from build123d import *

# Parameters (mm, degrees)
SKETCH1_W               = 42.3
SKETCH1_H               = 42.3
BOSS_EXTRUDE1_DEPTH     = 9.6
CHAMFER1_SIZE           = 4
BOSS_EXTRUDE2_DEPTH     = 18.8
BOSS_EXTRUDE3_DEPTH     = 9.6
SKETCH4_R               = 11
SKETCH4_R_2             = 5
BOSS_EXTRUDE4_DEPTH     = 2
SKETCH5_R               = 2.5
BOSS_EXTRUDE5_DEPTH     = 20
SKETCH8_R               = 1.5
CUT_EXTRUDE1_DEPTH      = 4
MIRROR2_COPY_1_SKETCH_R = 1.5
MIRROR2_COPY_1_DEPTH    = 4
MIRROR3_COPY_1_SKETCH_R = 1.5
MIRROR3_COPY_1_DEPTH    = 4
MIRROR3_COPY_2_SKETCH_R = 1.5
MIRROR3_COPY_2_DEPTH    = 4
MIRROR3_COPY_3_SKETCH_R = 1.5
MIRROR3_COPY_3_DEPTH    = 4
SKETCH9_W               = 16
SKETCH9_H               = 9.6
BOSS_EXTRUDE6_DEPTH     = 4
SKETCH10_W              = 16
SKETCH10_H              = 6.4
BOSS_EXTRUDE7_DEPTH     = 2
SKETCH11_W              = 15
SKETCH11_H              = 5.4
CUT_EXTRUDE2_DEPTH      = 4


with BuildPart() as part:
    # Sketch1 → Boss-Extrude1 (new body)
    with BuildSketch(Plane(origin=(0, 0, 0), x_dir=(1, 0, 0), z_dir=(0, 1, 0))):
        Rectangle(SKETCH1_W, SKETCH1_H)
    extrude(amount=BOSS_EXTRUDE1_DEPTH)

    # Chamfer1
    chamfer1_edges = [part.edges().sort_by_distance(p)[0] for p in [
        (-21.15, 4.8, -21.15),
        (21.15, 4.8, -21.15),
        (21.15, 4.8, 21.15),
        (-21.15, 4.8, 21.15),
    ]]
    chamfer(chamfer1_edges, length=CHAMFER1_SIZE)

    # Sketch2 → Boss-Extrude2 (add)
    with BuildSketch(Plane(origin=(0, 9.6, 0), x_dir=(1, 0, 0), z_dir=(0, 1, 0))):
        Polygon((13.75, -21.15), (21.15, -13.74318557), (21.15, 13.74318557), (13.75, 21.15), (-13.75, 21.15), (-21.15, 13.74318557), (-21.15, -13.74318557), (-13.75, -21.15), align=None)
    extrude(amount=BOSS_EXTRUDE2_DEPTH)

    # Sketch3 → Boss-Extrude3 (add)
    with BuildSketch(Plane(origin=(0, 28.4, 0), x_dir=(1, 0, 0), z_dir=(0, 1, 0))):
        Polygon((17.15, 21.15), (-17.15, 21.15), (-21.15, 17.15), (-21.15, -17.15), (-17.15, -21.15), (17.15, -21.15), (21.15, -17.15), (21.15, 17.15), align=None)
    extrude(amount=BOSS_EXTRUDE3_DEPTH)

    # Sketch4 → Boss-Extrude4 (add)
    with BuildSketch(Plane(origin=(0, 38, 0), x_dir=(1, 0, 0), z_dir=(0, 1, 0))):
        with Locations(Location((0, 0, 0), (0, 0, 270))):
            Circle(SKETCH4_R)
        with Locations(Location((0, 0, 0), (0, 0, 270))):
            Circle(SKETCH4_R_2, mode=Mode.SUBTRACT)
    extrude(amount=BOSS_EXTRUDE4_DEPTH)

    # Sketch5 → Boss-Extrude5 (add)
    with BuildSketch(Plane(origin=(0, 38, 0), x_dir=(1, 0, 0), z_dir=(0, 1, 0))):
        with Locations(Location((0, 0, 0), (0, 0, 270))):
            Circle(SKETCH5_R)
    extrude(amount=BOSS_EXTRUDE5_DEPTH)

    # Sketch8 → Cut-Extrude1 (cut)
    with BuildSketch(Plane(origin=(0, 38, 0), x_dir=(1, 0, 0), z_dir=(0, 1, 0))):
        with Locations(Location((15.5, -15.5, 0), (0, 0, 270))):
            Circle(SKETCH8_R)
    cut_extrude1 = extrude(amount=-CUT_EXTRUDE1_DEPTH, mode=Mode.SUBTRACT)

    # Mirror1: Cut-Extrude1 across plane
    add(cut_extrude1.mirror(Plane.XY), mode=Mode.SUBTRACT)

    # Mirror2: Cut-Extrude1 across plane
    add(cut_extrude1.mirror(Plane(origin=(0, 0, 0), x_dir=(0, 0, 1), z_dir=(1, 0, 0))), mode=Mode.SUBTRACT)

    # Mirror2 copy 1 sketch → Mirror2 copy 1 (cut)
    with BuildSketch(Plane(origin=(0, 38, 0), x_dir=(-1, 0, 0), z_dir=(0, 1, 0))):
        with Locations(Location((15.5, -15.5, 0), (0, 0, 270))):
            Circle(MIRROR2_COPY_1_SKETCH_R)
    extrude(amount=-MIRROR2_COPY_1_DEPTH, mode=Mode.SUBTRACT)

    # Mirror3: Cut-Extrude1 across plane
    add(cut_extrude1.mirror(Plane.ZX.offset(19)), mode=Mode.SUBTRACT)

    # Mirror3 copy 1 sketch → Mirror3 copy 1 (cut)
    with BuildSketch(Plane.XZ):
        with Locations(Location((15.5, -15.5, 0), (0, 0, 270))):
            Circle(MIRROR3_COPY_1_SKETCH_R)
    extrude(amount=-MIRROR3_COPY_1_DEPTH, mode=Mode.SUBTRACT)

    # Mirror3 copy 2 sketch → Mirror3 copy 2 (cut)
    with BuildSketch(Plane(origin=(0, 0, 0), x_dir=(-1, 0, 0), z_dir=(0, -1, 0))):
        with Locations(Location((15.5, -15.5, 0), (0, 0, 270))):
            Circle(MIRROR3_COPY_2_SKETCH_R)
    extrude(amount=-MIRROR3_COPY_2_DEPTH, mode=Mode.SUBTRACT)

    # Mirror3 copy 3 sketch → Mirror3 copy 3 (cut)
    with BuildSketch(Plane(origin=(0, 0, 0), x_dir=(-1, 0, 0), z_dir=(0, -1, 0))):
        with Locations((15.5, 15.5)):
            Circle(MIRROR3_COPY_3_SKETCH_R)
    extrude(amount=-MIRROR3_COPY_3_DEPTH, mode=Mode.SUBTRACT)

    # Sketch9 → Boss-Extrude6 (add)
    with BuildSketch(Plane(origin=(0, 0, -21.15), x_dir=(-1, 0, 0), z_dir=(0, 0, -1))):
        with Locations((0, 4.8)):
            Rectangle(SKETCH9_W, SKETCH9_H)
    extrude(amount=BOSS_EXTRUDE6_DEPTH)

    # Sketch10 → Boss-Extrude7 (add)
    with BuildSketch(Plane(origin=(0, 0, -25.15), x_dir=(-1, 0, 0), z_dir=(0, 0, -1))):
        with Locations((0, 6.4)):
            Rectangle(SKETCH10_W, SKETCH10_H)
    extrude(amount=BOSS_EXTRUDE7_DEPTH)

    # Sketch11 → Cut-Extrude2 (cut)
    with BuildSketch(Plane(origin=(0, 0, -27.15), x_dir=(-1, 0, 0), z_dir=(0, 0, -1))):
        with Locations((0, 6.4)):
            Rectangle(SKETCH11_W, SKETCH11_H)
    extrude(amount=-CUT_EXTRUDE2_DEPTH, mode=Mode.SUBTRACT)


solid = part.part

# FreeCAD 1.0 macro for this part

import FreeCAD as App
import Part
import Sketcher

V = App.Vector
Q = App.Units.Quantity


def edges_at(feature, points):
    """Names of the edges that pass closest to the given points."""
    edges = feature.Shape.Edges
    near = lambda p: min(range(len(edges)), key=lambda i: edges[i].distToShape(Part.Vertex(*p))[0])
    return sorted({f"Edge{near(p) + 1}" for p in points})

doc = App.newDocument("Part")
body = doc.addObject("PartDesign::Body", "Body")

sketch1 = doc.addObject("Sketcher::SketchObject", "Sketch")
body.addObject(sketch1)
sketch1.AttachmentSupport = (doc.XZ_Plane, [""])
sketch1.MapMode = "FlatFace"
sketch1.addGeometry(Part.LineSegment(V(-21.15, -21.15, 0), V(-21.15, 21.15, 0)), False)
sketch1.addGeometry(Part.LineSegment(V(-21.15, 21.15, 0), V(21.15, 21.15, 0)), False)
sketch1.addGeometry(Part.LineSegment(V(21.15, 21.15, 0), V(21.15, -21.15, 0)), False)
sketch1.addGeometry(Part.LineSegment(V(21.15, -21.15, 0), V(-21.15, -21.15, 0)), False)
sketch1.addConstraint(Sketcher.Constraint("Coincident", 0, 2, 1, 1))
sketch1.addConstraint(Sketcher.Constraint("Coincident", 1, 2, 2, 1))
sketch1.addConstraint(Sketcher.Constraint("Coincident", 2, 2, 3, 1))
sketch1.addConstraint(Sketcher.Constraint("Coincident", 3, 2, 0, 1))
sketch1.addConstraint(Sketcher.Constraint("Vertical", 0))
sketch1.addConstraint(Sketcher.Constraint("Horizontal", 1))
sketch1.addConstraint(Sketcher.Constraint("Vertical", 2))
sketch1.addConstraint(Sketcher.Constraint("Horizontal", 3))
sketch1.addConstraint(Sketcher.Constraint("Symmetric", 0, 2, 2, 2, -1, 1))
sketch1.addConstraint(Sketcher.Constraint("Equal", 3, 0))
sketch1.addConstraint(Sketcher.Constraint("DistanceX", 1, 1, 1, 2, Q("42.3 mm")))
pad1 = doc.addObject("PartDesign::Pad", "Pad")
body.addObject(pad1)
pad1.Profile = sketch1
pad1.Length = 9.6
pad1.Reversed = True
doc.recompute()

chamfer = doc.addObject("PartDesign::Chamfer", "Chamfer")
body.addObject(chamfer)
chamfer.Base = (pad1, edges_at(pad1, [
    (-21.15, 4.8, -21.15),
    (21.15, 4.8, -21.15),
    (21.15, 4.8, 21.15),
    (-21.15, 4.8, 21.15),
]))
chamfer.Size = 4

sketch2 = doc.addObject("Sketcher::SketchObject", "Sketch001")
body.addObject(sketch2)
sketch2.AttachmentSupport = (doc.XZ_Plane, [""])
sketch2.MapMode = "FlatFace"
sketch2.AttachmentOffset = App.Placement(V(0, 0, -9.6), App.Rotation())
sketch2.addGeometry(Part.LineSegment(V(13.75, 21.15, 0), V(21.15, 13.743186, 0)), False)
sketch2.addGeometry(Part.LineSegment(V(21.15, 13.743186, 0), V(21.15, -13.743186, 0)), False)
sketch2.addGeometry(Part.LineSegment(V(21.15, -13.743186, 0), V(13.75, -21.15, 0)), False)
sketch2.addGeometry(Part.LineSegment(V(13.75, -21.15, 0), V(-13.75, -21.15, 0)), False)
sketch2.addGeometry(Part.LineSegment(V(-13.75, -21.15, 0), V(-21.15, -13.743186, 0)), False)
sketch2.addGeometry(Part.LineSegment(V(-21.15, -13.743186, 0), V(-21.15, 13.743186, 0)), False)
sketch2.addGeometry(Part.LineSegment(V(-21.15, 13.743186, 0), V(-13.75, 21.15, 0)), False)
sketch2.addGeometry(Part.LineSegment(V(-13.75, 21.15, 0), V(13.75, 21.15, 0)), False)
sketch2.addConstraint(Sketcher.Constraint("Coincident", 0, 2, 1, 1))
sketch2.addConstraint(Sketcher.Constraint("Coincident", 1, 2, 2, 1))
sketch2.addConstraint(Sketcher.Constraint("Coincident", 2, 2, 3, 1))
sketch2.addConstraint(Sketcher.Constraint("Coincident", 3, 2, 4, 1))
sketch2.addConstraint(Sketcher.Constraint("Coincident", 4, 2, 5, 1))
sketch2.addConstraint(Sketcher.Constraint("Coincident", 5, 2, 6, 1))
sketch2.addConstraint(Sketcher.Constraint("Coincident", 6, 2, 7, 1))
sketch2.addConstraint(Sketcher.Constraint("Coincident", 7, 2, 0, 1))
sketch2.addConstraint(Sketcher.Constraint("Vertical", 1))
sketch2.addConstraint(Sketcher.Constraint("Horizontal", 3))
sketch2.addConstraint(Sketcher.Constraint("Vertical", 5))
sketch2.addConstraint(Sketcher.Constraint("Horizontal", 7))
sketch2.addConstraint(Sketcher.Constraint("Symmetric", 0, 2, 4, 2, -1, 1))
sketch2.addConstraint(Sketcher.Constraint("Symmetric", 2, 2, 6, 2, -1, 1))
sketch2.addConstraint(Sketcher.Constraint("Parallel", 0, 4))
sketch2.addConstraint(Sketcher.Constraint("Parallel", 2, 6))
sketch2.addConstraint(Sketcher.Constraint("Horizontal", 1, 2, 4, 2))
sketch2.addConstraint(Sketcher.Constraint("Vertical", 3, 2, 6, 2))
sketch2.addConstraint(Sketcher.Constraint("DistanceX", 3, 2, 3, 1, Q("27.5 mm")))
sketch2.addConstraint(Sketcher.Constraint("DistanceX", 2, 2, 1, 2, Q("7.4 mm")))
sketch2.addConstraint(Sketcher.Constraint("DistanceY", 3, 2, 6, 2, Q("42.3 mm")))
sketch2.addConstraint(Sketcher.Constraint("Distance", 0, Q("10.47 mm")))
pad2 = doc.addObject("PartDesign::Pad", "Pad001")
body.addObject(pad2)
pad2.Profile = sketch2
pad2.Length = 18.8
pad2.Reversed = True

sketch3 = doc.addObject("Sketcher::SketchObject", "Sketch002")
body.addObject(sketch3)
sketch3.AttachmentSupport = (doc.XZ_Plane, [""])
sketch3.MapMode = "FlatFace"
sketch3.AttachmentOffset = App.Placement(V(0, 0, -28.4), App.Rotation())
sketch3.addGeometry(Part.LineSegment(V(17.15, -21.15, 0), V(-17.15, -21.15, 0)), False)
sketch3.addGeometry(Part.LineSegment(V(-17.15, -21.15, 0), V(-21.15, -17.15, 0)), False)
sketch3.addGeometry(Part.LineSegment(V(-21.15, -17.15, 0), V(-21.15, 17.15, 0)), False)
sketch3.addGeometry(Part.LineSegment(V(-21.15, 17.15, 0), V(-17.15, 21.15, 0)), False)
sketch3.addGeometry(Part.LineSegment(V(-17.15, 21.15, 0), V(17.15, 21.15, 0)), False)
sketch3.addGeometry(Part.LineSegment(V(17.15, 21.15, 0), V(21.15, 17.15, 0)), False)
sketch3.addGeometry(Part.LineSegment(V(21.15, 17.15, 0), V(21.15, -17.15, 0)), False)
sketch3.addGeometry(Part.LineSegment(V(21.15, -17.15, 0), V(17.15, -21.15, 0)), False)
sketch3.addConstraint(Sketcher.Constraint("Coincident", 0, 2, 1, 1))
sketch3.addConstraint(Sketcher.Constraint("Coincident", 1, 2, 2, 1))
sketch3.addConstraint(Sketcher.Constraint("Coincident", 2, 2, 3, 1))
sketch3.addConstraint(Sketcher.Constraint("Coincident", 3, 2, 4, 1))
sketch3.addConstraint(Sketcher.Constraint("Coincident", 4, 2, 5, 1))
sketch3.addConstraint(Sketcher.Constraint("Coincident", 5, 2, 6, 1))
sketch3.addConstraint(Sketcher.Constraint("Coincident", 6, 2, 7, 1))
sketch3.addConstraint(Sketcher.Constraint("Coincident", 7, 2, 0, 1))
sketch3.addConstraint(Sketcher.Constraint("Horizontal", 0))
sketch3.addConstraint(Sketcher.Constraint("Vertical", 2))
sketch3.addConstraint(Sketcher.Constraint("Horizontal", 4))
sketch3.addConstraint(Sketcher.Constraint("Vertical", 6))
sketch3.addConstraint(Sketcher.Constraint("Symmetric", 0, 2, 4, 2, -1, 1))
sketch3.addConstraint(Sketcher.Constraint("Symmetric", 1, 2, 5, 2, -1, 1))
sketch3.addConstraint(Sketcher.Constraint("Perpendicular", 1, 3))
sketch3.addConstraint(Sketcher.Constraint("Perpendicular", 5, 7))
sketch3.addConstraint(Sketcher.Constraint("Horizontal", 2, 2, 5, 2))
sketch3.addConstraint(Sketcher.Constraint("Horizontal", 1, 2, 6, 2))
sketch3.addConstraint(Sketcher.Constraint("Vertical", 0, 2, 3, 2))
sketch3.addConstraint(Sketcher.Constraint("Equal", 4, 2))
sketch3.addConstraint(Sketcher.Constraint("DistanceX", 0, 2, 0, 1, Q("34.3 mm")))
sketch3.addConstraint(Sketcher.Constraint("DistanceX", 1, 2, 0, 2, Q("4 mm")))
pad3 = doc.addObject("PartDesign::Pad", "Pad002")
body.addObject(pad3)
pad3.Profile = sketch3
pad3.Length = 9.6
pad3.Reversed = True

sketch4 = doc.addObject("Sketcher::SketchObject", "Sketch003")
body.addObject(sketch4)
sketch4.AttachmentSupport = (doc.XZ_Plane, [""])
sketch4.MapMode = "FlatFace"
sketch4.AttachmentOffset = App.Placement(V(0, 0, -38), App.Rotation())
sketch4.addGeometry(Part.Circle(V(0, 0, 0), V(0, 0, 1), 11), False)
sketch4.addGeometry(Part.Circle(V(0, 0, 0), V(0, 0, 1), 5), False)
sketch4.addConstraint(Sketcher.Constraint("Coincident", 0, 3, -1, 1))
sketch4.addConstraint(Sketcher.Constraint("Coincident", 1, 3, -1, 1))
sketch4.addConstraint(Sketcher.Constraint("Diameter", 0, Q("22 mm")))
sketch4.addConstraint(Sketcher.Constraint("Diameter", 1, Q("10 mm")))
pad4 = doc.addObject("PartDesign::Pad", "Pad003")
body.addObject(pad4)
pad4.Profile = sketch4
pad4.Length = 2
pad4.Reversed = True

sketch5 = doc.addObject("Sketcher::SketchObject", "Sketch004")
body.addObject(sketch5)
sketch5.AttachmentSupport = (doc.XZ_Plane, [""])
sketch5.MapMode = "FlatFace"
sketch5.AttachmentOffset = App.Placement(V(0, 0, -38), App.Rotation())
sketch5.addGeometry(Part.Circle(V(0, 0, 0), V(0, 0, 1), 2.5), False)
sketch5.addConstraint(Sketcher.Constraint("Coincident", 0, 3, -1, 1))
sketch5.addConstraint(Sketcher.Constraint("Diameter", 0, Q("5 mm")))
pad5 = doc.addObject("PartDesign::Pad", "Pad004")
body.addObject(pad5)
pad5.Profile = sketch5
pad5.Length = 20
pad5.Reversed = True

sketch6 = doc.addObject("Sketcher::SketchObject", "Sketch005")
body.addObject(sketch6)
sketch6.AttachmentSupport = (doc.XZ_Plane, [""])
sketch6.MapMode = "FlatFace"
sketch6.AttachmentOffset = App.Placement(V(0, 0, -38), App.Rotation())
sketch6.addGeometry(Part.Circle(V(15.5, 15.5, 0), V(0, 0, 1), 1.5), False)
sketch6.addConstraint(Sketcher.Constraint("Diameter", 0, Q("3 mm")))
sketch6.addConstraint(Sketcher.Constraint("DistanceX", -1, 1, 0, 3, Q("15.5 mm")))
sketch6.addConstraint(Sketcher.Constraint("DistanceY", -1, 1, 0, 3, Q("15.5 mm")))
pocket1 = doc.addObject("PartDesign::Pocket", "Pocket")
body.addObject(pocket1)
pocket1.Profile = sketch6
pocket1.Length = 4
pocket1.Reversed = True
doc.recompute()

mirrored = doc.addObject("PartDesign::Mirrored", "Mirrored")
body.addObject(mirrored)
mirrored.Originals = [pocket1]
mirrored.MirrorPlane = (doc.XY_Plane, [""])
body.Tip = mirrored
doc.recompute()

mirrored2 = doc.addObject("PartDesign::Mirrored", "Mirrored001")
body.addObject(mirrored2)
mirrored2.Originals = [pocket1]
mirrored2.MirrorPlane = (doc.YZ_Plane, [""])
body.Tip = mirrored2

sketch7 = doc.addObject("Sketcher::SketchObject", "Sketch006")
body.addObject(sketch7)
sketch7.AttachmentSupport = (doc.XZ_Plane, [""])
sketch7.MapMode = "FlatFace"
sketch7.AttachmentOffset = App.Placement(V(0, 0, -38), App.Rotation())
sketch7.addGeometry(Part.Circle(V(-15.5, -15.5, 0), V(0, 0, 1), 1.5), False)
sketch7.addConstraint(Sketcher.Constraint("Diameter", 0, Q("3 mm")))
sketch7.addConstraint(Sketcher.Constraint("DistanceX", 0, 3, -1, 1, Q("15.5 mm")))
sketch7.addConstraint(Sketcher.Constraint("DistanceY", 0, 3, -1, 1, Q("15.5 mm")))
pocket2 = doc.addObject("PartDesign::Pocket", "Pocket001")
body.addObject(pocket2)
pocket2.Profile = sketch7
pocket2.Length = 4
pocket2.Reversed = True
doc.recompute()

datumplane = doc.addObject("PartDesign::Plane", "DatumPlane")
body.addObject(datumplane)
datumplane.AttachmentSupport = (doc.XZ_Plane, [""])
datumplane.MapMode = "FlatFace"
datumplane.AttachmentOffset = App.Placement(V(0, 0, -19), App.Rotation())
mirrored3 = doc.addObject("PartDesign::Mirrored", "Mirrored002")
body.addObject(mirrored3)
mirrored3.Originals = [pocket1]
mirrored3.MirrorPlane = (datumplane, [""])
body.Tip = mirrored3

sketch8 = doc.addObject("Sketcher::SketchObject", "Sketch007")
body.addObject(sketch8)
sketch8.AttachmentSupport = (doc.XZ_Plane, [""])
sketch8.MapMode = "FlatFace"
sketch8.addGeometry(Part.Circle(V(15.5, -15.5, 0), V(0, 0, 1), 1.5), False)
sketch8.addConstraint(Sketcher.Constraint("Diameter", 0, Q("3 mm")))
sketch8.addConstraint(Sketcher.Constraint("DistanceX", -1, 1, 0, 3, Q("15.5 mm")))
sketch8.addConstraint(Sketcher.Constraint("DistanceY", 0, 3, -1, 1, Q("15.5 mm")))
pocket3 = doc.addObject("PartDesign::Pocket", "Pocket002")
body.addObject(pocket3)
pocket3.Profile = sketch8
pocket3.Length = 4

sketch9 = doc.addObject("Sketcher::SketchObject", "Sketch008")
body.addObject(sketch9)
sketch9.AttachmentSupport = (doc.XZ_Plane, [""])
sketch9.MapMode = "FlatFace"
sketch9.addGeometry(Part.Circle(V(-15.5, 15.5, 0), V(0, 0, 1), 1.5), False)
sketch9.addConstraint(Sketcher.Constraint("Diameter", 0, Q("3 mm")))
sketch9.addConstraint(Sketcher.Constraint("DistanceX", 0, 3, -1, 1, Q("15.5 mm")))
sketch9.addConstraint(Sketcher.Constraint("DistanceY", -1, 1, 0, 3, Q("15.5 mm")))
pocket4 = doc.addObject("PartDesign::Pocket", "Pocket003")
body.addObject(pocket4)
pocket4.Profile = sketch9
pocket4.Length = 4

sketch10 = doc.addObject("Sketcher::SketchObject", "Sketch009")
body.addObject(sketch10)
sketch10.AttachmentSupport = (doc.XZ_Plane, [""])
sketch10.MapMode = "FlatFace"
sketch10.addGeometry(Part.Circle(V(-15.5, -15.5, 0), V(0, 0, 1), 1.5), False)
sketch10.addConstraint(Sketcher.Constraint("Diameter", 0, Q("3 mm")))
sketch10.addConstraint(Sketcher.Constraint("DistanceX", 0, 3, -1, 1, Q("15.5 mm")))
sketch10.addConstraint(Sketcher.Constraint("DistanceY", 0, 3, -1, 1, Q("15.5 mm")))
pocket5 = doc.addObject("PartDesign::Pocket", "Pocket004")
body.addObject(pocket5)
pocket5.Profile = sketch10
pocket5.Length = 4

sketch11 = doc.addObject("Sketcher::SketchObject", "Sketch010")
body.addObject(sketch11)
sketch11.AttachmentSupport = (doc.XY_Plane, [""])
sketch11.MapMode = "FlatFace"
sketch11.AttachmentOffset = App.Placement(V(0, 0, -21.15), App.Rotation())
sketch11.addGeometry(Part.LineSegment(V(8, 9.6, 0), V(8, 0, 0)), False)
sketch11.addGeometry(Part.LineSegment(V(8, 0, 0), V(-8, 0, 0)), False)
sketch11.addGeometry(Part.LineSegment(V(-8, 0, 0), V(-8, 9.6, 0)), False)
sketch11.addGeometry(Part.LineSegment(V(-8, 9.6, 0), V(8, 9.6, 0)), False)
sketch11.addConstraint(Sketcher.Constraint("Coincident", 0, 2, 1, 1))
sketch11.addConstraint(Sketcher.Constraint("Coincident", 1, 2, 2, 1))
sketch11.addConstraint(Sketcher.Constraint("Coincident", 2, 2, 3, 1))
sketch11.addConstraint(Sketcher.Constraint("Coincident", 3, 2, 0, 1))
sketch11.addConstraint(Sketcher.Constraint("Vertical", 0))
sketch11.addConstraint(Sketcher.Constraint("Horizontal", 1))
sketch11.addConstraint(Sketcher.Constraint("Vertical", 2))
sketch11.addConstraint(Sketcher.Constraint("Horizontal", 3))
sketch11.addConstraint(Sketcher.Constraint("Symmetric", 0, 2, 1, 2, -1, 1))
sketch11.addConstraint(Sketcher.Constraint("DistanceX", 1, 2, 1, 1, Q("16 mm")))
sketch11.addConstraint(Sketcher.Constraint("DistanceY", 0, 2, 0, 1, Q("9.6 mm")))
pad6 = doc.addObject("PartDesign::Pad", "Pad005")
body.addObject(pad6)
pad6.Profile = sketch11
pad6.Length = 4
pad6.Reversed = True

sketch12 = doc.addObject("Sketcher::SketchObject", "Sketch011")
body.addObject(sketch12)
sketch12.AttachmentSupport = (doc.XY_Plane, [""])
sketch12.MapMode = "FlatFace"
sketch12.AttachmentOffset = App.Placement(V(0, 0, -25.15), App.Rotation())
sketch12.addGeometry(Part.LineSegment(V(8, 9.6, 0), V(8, 3.2, 0)), False)
sketch12.addGeometry(Part.LineSegment(V(8, 3.2, 0), V(-8, 3.2, 0)), False)
sketch12.addGeometry(Part.LineSegment(V(-8, 3.2, 0), V(-8, 9.6, 0)), False)
sketch12.addGeometry(Part.LineSegment(V(-8, 9.6, 0), V(8, 9.6, 0)), False)
sketch12.addConstraint(Sketcher.Constraint("Coincident", 0, 2, 1, 1))
sketch12.addConstraint(Sketcher.Constraint("Coincident", 1, 2, 2, 1))
sketch12.addConstraint(Sketcher.Constraint("Coincident", 2, 2, 3, 1))
sketch12.addConstraint(Sketcher.Constraint("Coincident", 3, 2, 0, 1))
sketch12.addConstraint(Sketcher.Constraint("Vertical", 0))
sketch12.addConstraint(Sketcher.Constraint("Horizontal", 1))
sketch12.addConstraint(Sketcher.Constraint("Vertical", 2))
sketch12.addConstraint(Sketcher.Constraint("Horizontal", 3))
sketch12.addConstraint(Sketcher.Constraint("DistanceX", 1, 2, 1, 1, Q("16 mm")))
sketch12.addConstraint(Sketcher.Constraint("DistanceY", 0, 2, 0, 1, Q("6.4 mm")))
sketch12.addConstraint(Sketcher.Constraint("DistanceX", -1, 1, 0, 2, Q("8 mm")))
sketch12.addConstraint(Sketcher.Constraint("DistanceY", -1, 1, 0, 2, Q("3.2 mm")))
pad7 = doc.addObject("PartDesign::Pad", "Pad006")
body.addObject(pad7)
pad7.Profile = sketch12
pad7.Length = 2
pad7.Reversed = True

sketch13 = doc.addObject("Sketcher::SketchObject", "Sketch012")
body.addObject(sketch13)
sketch13.AttachmentSupport = (doc.XY_Plane, [""])
sketch13.MapMode = "FlatFace"
sketch13.AttachmentOffset = App.Placement(V(0, 0, -27.15), App.Rotation())
sketch13.addGeometry(Part.LineSegment(V(7.5, 9.1, 0), V(7.5, 3.7, 0)), False)
sketch13.addGeometry(Part.LineSegment(V(7.5, 3.7, 0), V(-7.5, 3.7, 0)), False)
sketch13.addGeometry(Part.LineSegment(V(-7.5, 3.7, 0), V(-7.5, 9.1, 0)), False)
sketch13.addGeometry(Part.LineSegment(V(-7.5, 9.1, 0), V(7.5, 9.1, 0)), False)
sketch13.addConstraint(Sketcher.Constraint("Coincident", 0, 2, 1, 1))
sketch13.addConstraint(Sketcher.Constraint("Coincident", 1, 2, 2, 1))
sketch13.addConstraint(Sketcher.Constraint("Coincident", 2, 2, 3, 1))
sketch13.addConstraint(Sketcher.Constraint("Coincident", 3, 2, 0, 1))
sketch13.addConstraint(Sketcher.Constraint("Vertical", 0))
sketch13.addConstraint(Sketcher.Constraint("Horizontal", 1))
sketch13.addConstraint(Sketcher.Constraint("Vertical", 2))
sketch13.addConstraint(Sketcher.Constraint("Horizontal", 3))
sketch13.addConstraint(Sketcher.Constraint("DistanceX", 1, 2, 1, 1, Q("15 mm")))
sketch13.addConstraint(Sketcher.Constraint("DistanceY", 0, 2, 0, 1, Q("5.4 mm")))
sketch13.addConstraint(Sketcher.Constraint("DistanceX", -1, 1, 0, 2, Q("7.5 mm")))
sketch13.addConstraint(Sketcher.Constraint("DistanceY", -1, 1, 0, 2, Q("3.7 mm")))
pocket6 = doc.addObject("PartDesign::Pocket", "Pocket005")
body.addObject(pocket6)
pocket6.Profile = sketch13
pocket6.Length = 4
pocket6.Reversed = True

doc.recompute()
